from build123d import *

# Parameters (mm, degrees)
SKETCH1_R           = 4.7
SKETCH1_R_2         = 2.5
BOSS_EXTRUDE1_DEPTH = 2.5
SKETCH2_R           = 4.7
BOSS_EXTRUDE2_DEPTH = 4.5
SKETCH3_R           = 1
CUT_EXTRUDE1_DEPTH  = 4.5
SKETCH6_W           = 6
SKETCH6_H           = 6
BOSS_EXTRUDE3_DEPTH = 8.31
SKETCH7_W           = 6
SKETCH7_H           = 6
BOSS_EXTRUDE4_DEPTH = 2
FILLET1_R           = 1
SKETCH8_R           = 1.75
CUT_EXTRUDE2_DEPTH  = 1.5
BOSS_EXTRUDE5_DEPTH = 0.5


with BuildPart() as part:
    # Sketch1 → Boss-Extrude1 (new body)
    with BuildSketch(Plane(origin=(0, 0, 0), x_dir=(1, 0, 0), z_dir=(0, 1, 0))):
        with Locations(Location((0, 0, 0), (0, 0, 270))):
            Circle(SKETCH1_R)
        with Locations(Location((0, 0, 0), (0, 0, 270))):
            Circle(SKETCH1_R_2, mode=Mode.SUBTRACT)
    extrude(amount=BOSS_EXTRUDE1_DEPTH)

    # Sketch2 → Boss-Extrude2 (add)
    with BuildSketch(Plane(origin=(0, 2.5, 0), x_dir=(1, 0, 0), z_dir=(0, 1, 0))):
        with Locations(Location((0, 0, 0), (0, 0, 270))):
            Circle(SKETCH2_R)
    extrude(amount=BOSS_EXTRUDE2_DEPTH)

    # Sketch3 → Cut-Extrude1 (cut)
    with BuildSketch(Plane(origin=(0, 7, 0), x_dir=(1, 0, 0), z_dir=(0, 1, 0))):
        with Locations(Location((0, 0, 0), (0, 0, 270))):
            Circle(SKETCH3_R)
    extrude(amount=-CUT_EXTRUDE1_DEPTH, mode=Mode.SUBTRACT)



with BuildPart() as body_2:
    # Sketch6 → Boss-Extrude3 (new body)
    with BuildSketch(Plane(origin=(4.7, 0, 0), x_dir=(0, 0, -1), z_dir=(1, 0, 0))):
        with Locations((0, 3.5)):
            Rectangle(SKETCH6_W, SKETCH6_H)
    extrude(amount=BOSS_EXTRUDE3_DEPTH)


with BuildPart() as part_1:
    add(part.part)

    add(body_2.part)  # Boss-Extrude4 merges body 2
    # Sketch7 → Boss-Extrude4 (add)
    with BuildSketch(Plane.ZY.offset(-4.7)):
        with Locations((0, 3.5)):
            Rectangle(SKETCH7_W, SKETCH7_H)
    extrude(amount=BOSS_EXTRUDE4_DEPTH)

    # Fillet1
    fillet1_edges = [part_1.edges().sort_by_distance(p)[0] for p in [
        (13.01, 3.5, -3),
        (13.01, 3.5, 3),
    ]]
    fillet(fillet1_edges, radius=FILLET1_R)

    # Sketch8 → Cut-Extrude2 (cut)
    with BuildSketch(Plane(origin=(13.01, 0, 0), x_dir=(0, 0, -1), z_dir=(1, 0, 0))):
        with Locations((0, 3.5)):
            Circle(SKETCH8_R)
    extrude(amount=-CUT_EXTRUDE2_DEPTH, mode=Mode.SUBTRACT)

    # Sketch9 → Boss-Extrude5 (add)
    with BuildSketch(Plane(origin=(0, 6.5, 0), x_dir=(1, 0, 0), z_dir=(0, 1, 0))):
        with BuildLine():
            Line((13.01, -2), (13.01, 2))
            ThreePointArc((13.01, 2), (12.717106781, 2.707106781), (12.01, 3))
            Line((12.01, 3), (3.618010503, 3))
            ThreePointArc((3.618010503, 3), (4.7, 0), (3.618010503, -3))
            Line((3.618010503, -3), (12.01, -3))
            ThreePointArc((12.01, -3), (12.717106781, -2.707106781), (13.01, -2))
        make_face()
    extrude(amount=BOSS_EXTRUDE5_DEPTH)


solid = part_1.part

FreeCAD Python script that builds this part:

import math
import FreeCAD as App
import Part
import Sketcher
Q = App.Units.Quantity


def edges_at(feature, points):
    """Names of the edges that pass closest to the given points."""
    edges = feature.Shape.Edges
    near = lambda p: min(range(len(edges)), key=lambda i: edges[i].distToShape(Part.Vertex(*p))[0])
    return sorted({f"Edge{near(p) + 1}" for p in points})

doc = App.newDocument("Part")
params = doc.addObject("Spreadsheet::Sheet", "Params")
for row, (alias, value) in enumerate([
    ("sketch1_diameter", "5 mm"),
    ("sketch1_diameter2", "9.4 mm"),
    ("pad1_length", "2.5 mm"),
    ("sketch2_diameter", "9.4 mm"),
    ("pad2_length", "4.5 mm"),
    ("sketch3_diameter", "2 mm"),
    ("pocket1_length", "4.5 mm"),
    ("sketch4_width", "6 mm"),
    ("pad3_length", "8.31 mm"),
    ("sketch5_width", "6 mm"),
    ("pad4_length", "2 mm"),
    ("fillet_radius", "1 mm"),
    ("sketch6_diameter", "3.5 mm"),
    ("pocket2_length", "1.5 mm"),
    ("sketch7_radius", "1 mm"),
    ("sketch7_radius2", "4.7 mm"),
    ("sketch7_height", "4 mm"),
    ("pad5_length", "0.5 mm"),
], start=1):
    params.set(f"A{row}", alias)
    params.set(f"B{row}", "=" + value)
    params.setAlias(f"B{row}", alias)

body = doc.addObject("PartDesign::Body", "Body")

sketch1 = doc.addObject("Sketcher::SketchObject", "Sketch")
body.addObject(sketch1)
sketch1.AttachmentSupport = (doc.XZ_Plane, [""])
sketch1.MapMode = "FlatFace"
sketch1.addGeometry(Part.Circle(App.Vector(0, 0, 0), App.Vector(0, 0, 1), 4.7), False)
sketch1.addGeometry(Part.Circle(App.Vector(0, 0, 0), App.Vector(0, 0, 1), 2.5), False)
sketch1.addConstraint(Sketcher.Constraint("Coincident", 0, 3, -1, 1))
sketch1.addConstraint(Sketcher.Constraint("Coincident", 1, 3, -1, 1))
sketch1.addConstraint(Sketcher.Constraint("Diameter", 1, Q("5 mm")))
sketch1.addConstraint(Sketcher.Constraint("Diameter", 0, Q("9.4 mm")))
sketch1.setExpression("Constraints[2]", "Params.sketch1_diameter")
sketch1.setExpression("Constraints[3]", "Params.sketch1_diameter2")
pad1 = doc.addObject("PartDesign::Pad", "Pad")
body.addObject(pad1)
pad1.Profile = sketch1
pad1.setExpression("Length", "Params.pad1_length")
pad1.Reversed = True

sketch2 = doc.addObject("Sketcher::SketchObject", "Sketch001")
body.addObject(sketch2)
sketch2.AttachmentSupport = (doc.XZ_Plane, [""])
sketch2.MapMode = "FlatFace"
sketch2.AttachmentOffset = App.Placement(App.Vector(0, 0, -2.5), App.Rotation())
sketch2.addGeometry(Part.Circle(App.Vector(0, 0, 0), App.Vector(0, 0, 1), 4.7), False)
sketch2.addConstraint(Sketcher.Constraint("Coincident", 0, 3, -1, 1))
sketch2.addConstraint(Sketcher.Constraint("Diameter", 0, Q("9.4 mm")))
sketch2.setExpression("Constraints[1]", "Params.sketch2_diameter")
pad2 = doc.addObject("PartDesign::Pad", "Pad001")
body.addObject(pad2)
pad2.Profile = sketch2
pad2.setExpression("Length", "Params.pad2_length")
pad2.Reversed = True

sketch3 = doc.addObject("Sketcher::SketchObject", "Sketch002")
body.addObject(sketch3)
sketch3.AttachmentSupport = (doc.XZ_Plane, [""])
sketch3.MapMode = "FlatFace"
sketch3.AttachmentOffset = App.Placement(App.Vector(0, 0, -7), App.Rotation())
sketch3.addGeometry(Part.Circle(App.Vector(0, 0, 0), App.Vector(0, 0, 1), 1), False)
sketch3.addConstraint(Sketcher.Constraint("Coincident", 0, 3, -1, 1))
sketch3.addConstraint(Sketcher.Constraint("Diameter", 0, Q("2 mm")))
sketch3.setExpression("Constraints[1]", "Params.sketch3_diameter")
pocket1 = doc.addObject("PartDesign::Pocket", "Pocket")
body.addObject(pocket1)
pocket1.Profile = sketch3
pocket1.setExpression("Length", "Params.pocket1_length")
pocket1.Reversed = True
body2 = doc.addObject("PartDesign::Body", "Body001")

sketch4 = doc.addObject("Sketcher::SketchObject", "Sketch003")
body2.addObject(sketch4)
sketch4.AttachmentSupport = (doc.getObject("YZ_Plane001"), [""])
sketch4.MapMode = "FlatFace"
sketch4.AttachmentOffset = App.Placement(App.Vector(0, 0, 4.7), App.Rotation())
sketch4.addGeometry(Part.LineSegment(App.Vector(6.5, 3, 0), App.Vector(0.5, 3, 0)), False)
sketch4.addGeometry(Part.LineSegment(App.Vector(0.5, 3, 0), App.Vector(0.5, -3, 0)), False)
sketch4.addGeometry(Part.LineSegment(App.Vector(0.5, -3, 0), App.Vector(6.5, -3, 0)), False)
sketch4.addGeometry(Part.LineSegment(App.Vector(6.5, -3, 0), App.Vector(6.5, 3, 0)), False)
sketch4.addConstraint(Sketcher.Constraint("Coincident", 0, 2, 1, 1))
sketch4.addConstraint(Sketcher.Constraint("Coincident", 1, 2, 2, 1))
sketch4.addConstraint(Sketcher.Constraint("Coincident", 2, 2, 3, 1))
sketch4.addConstraint(Sketcher.Constraint("Coincident", 3, 2, 0, 1))
sketch4.addConstraint(Sketcher.Constraint("Horizontal", 0))
sketch4.addConstraint(Sketcher.Constraint("Vertical", 1))
sketch4.addConstraint(Sketcher.Constraint("Horizontal", 2))
sketch4.addConstraint(Sketcher.Constraint("Vertical", 3))
sketch4.addConstraint(Sketcher.Constraint("Equal", 2, 1))
sketch4.addConstraint(Sketcher.Constraint("DistanceX", 0, 2, 0, 1, Q("6 mm")))
sketch4.addConstraint(Sketcher.Constraint("DistanceY", -1, 1, 0, 2, Q("3 mm")))
sketch4.addConstraint(Sketcher.Constraint("DistanceX", -1, 1, 0, 2, Q("0.5 mm")))
sketch4.setExpression("Constraints[9]", "Params.sketch4_width")
pad3 = doc.addObject("PartDesign::Pad", "Pad002")
body2.addObject(pad3)
pad3.Profile = sketch4
pad3.setExpression("Length", "Params.pad3_length")
body.AllowCompound = True
doc.recompute()

boolean = doc.addObject("PartDesign::Boolean", "Boolean")
body.addObject(boolean)
boolean.Type = "Fuse"
boolean.addObjects([body2])

sketch5 = doc.addObject("Sketcher::SketchObject", "Sketch004")
body.addObject(sketch5)
sketch5.AttachmentSupport = (doc.YZ_Plane, [""])
sketch5.MapMode = "FlatFace"
sketch5.AttachmentOffset = App.Placement(App.Vector(0, 0, 4.7), App.Rotation())
sketch5.addGeometry(Part.LineSegment(App.Vector(6.5, -3, 0), App.Vector(0.5, -3, 0)), False)
sketch5.addGeometry(Part.LineSegment(App.Vector(0.5, -3, 0), App.Vector(0.5, 3, 0)), False)
sketch5.addGeometry(Part.LineSegment(App.Vector(0.5, 3, 0), App.Vector(6.5, 3, 0)), False)
sketch5.addGeometry(Part.LineSegment(App.Vector(6.5, 3, 0), App.Vector(6.5, -3, 0)), False)
sketch5.addConstraint(Sketcher.Constraint("Coincident", 0, 2, 1, 1))
sketch5.addConstraint(Sketcher.Constraint("Coincident", 1, 2, 2, 1))
sketch5.addConstraint(Sketcher.Constraint("Coincident", 2, 2, 3, 1))
sketch5.addConstraint(Sketcher.Constraint("Coincident", 3, 2, 0, 1))
sketch5.addConstraint(Sketcher.Constraint("Horizontal", 0))
sketch5.addConstraint(Sketcher.Constraint("Vertical", 1))
sketch5.addConstraint(Sketcher.Constraint("Horizontal", 2))
sketch5.addConstraint(Sketcher.Constraint("Vertical", 3))
sketch5.addConstraint(Sketcher.Constraint("Equal", 2, 1))
sketch5.addConstraint(Sketcher.Constraint("DistanceX", 0, 2, 0, 1, Q("6 mm")))
sketch5.addConstraint(Sketcher.Constraint("DistanceY", 0, 2, -1, 1, Q("3 mm")))
sketch5.addConstraint(Sketcher.Constraint("DistanceX", -1, 1, 0, 2, Q("0.5 mm")))
sketch5.setExpression("Constraints[9]", "Params.sketch5_width")
pad4 = doc.addObject("PartDesign::Pad", "Pad003")
body.addObject(pad4)
pad4.Profile = sketch5
pad4.setExpression("Length", "Params.pad4_length")
pad4.Reversed = True
doc.recompute()

fillet = doc.addObject("PartDesign::Fillet", "Fillet")
body.addObject(fillet)
fillet.Base = (pad4, edges_at(pad4, [(13.01, 3.5, -3), (13.01, 3.5, 3)]))
fillet.setExpression("Radius", "Params.fillet_radius")

sketch6 = doc.addObject("Sketcher::SketchObject", "Sketch005")
body.addObject(sketch6)
sketch6.AttachmentSupport = (doc.YZ_Plane, [""])
sketch6.MapMode = "FlatFace"
sketch6.AttachmentOffset = App.Placement(App.Vector(0, 0, 13.01), App.Rotation())
sketch6.addGeometry(Part.Circle(App.Vector(3.5, 0, 0), App.Vector(0, 0, 1), 1.75), False)
sketch6.addConstraint(Sketcher.Constraint("PointOnObject", 0, 3, -1))
sketch6.addConstraint(Sketcher.Constraint("Diameter", 0, Q("3.5 mm")))
sketch6.addConstraint(Sketcher.Constraint("DistanceX", -1, 1, 0, 3, Q("3.5 mm")))
sketch6.setExpression("Constraints[1]", "Params.sketch6_diameter")
pocket2 = doc.addObject("PartDesign::Pocket", "Pocket001")
body.addObject(pocket2)
pocket2.Profile = sketch6
pocket2.setExpression("Length", "Params.pocket2_length")

sketch7 = doc.addObject("Sketcher::SketchObject", "Sketch006")
body.addObject(sketch7)
sketch7.AttachmentSupport = (doc.XZ_Plane, [""])
sketch7.MapMode = "FlatFace"
sketch7.AttachmentOffset = App.Placement(App.Vector(0, 0, -6.5), App.Rotation())
sketch7.addGeometry(Part.LineSegment(App.Vector(13.01, 2, 0), App.Vector(13.01, -2, 0)), False)
sketch7.addGeometry(Part.ArcOfCircle(Part.Circle(App.Vector(12.01, -2, 0), App.Vector(0, 0, 1), 1), math.radians(-90), math.radians(0)), False)
sketch7.addGeometry(Part.LineSegment(App.Vector(12.01, -3, 0), App.Vector(3.618011, -3, 0)), False)
sketch7.addGeometry(Part.ArcOfCircle(Part.Circle(App.Vector(0, 0, 0), App.Vector(0, 0, 1), 4.7), math.radians(-39.665013), math.radians(39.665013)), False)
sketch7.addGeometry(Part.LineSegment(App.Vector(3.618011, 3, 0), App.Vector(12.01, 3, 0)), False)
sketch7.addGeometry(Part.ArcOfCircle(Part.Circle(App.Vector(12.01, 2, 0), App.Vector(0, 0, 1), 1), math.radians(0), math.radians(90)), False)
sketch7.addConstraint(Sketcher.Constraint("Tangent", 0, 2, 1, 2))
sketch7.addConstraint(Sketcher.Constraint("Tangent", 1, 1, 2, 1))
sketch7.addConstraint(Sketcher.Constraint("Coincident", 2, 2, 3, 1))
sketch7.addConstraint(Sketcher.Constraint("Coincident", 3, 2, 4, 1))
sketch7.addConstraint(Sketcher.Constraint("Tangent", 4, 2, 5, 2))
sketch7.addConstraint(Sketcher.Constraint("Tangent", 5, 1, 0, 1))
sketch7.addConstraint(Sketcher.Constraint("Vertical", 0))
sketch7.addConstraint(Sketcher.Constraint("Horizontal", 2))
sketch7.addConstraint(Sketcher.Constraint("Horizontal", 4))
sketch7.addConstraint(Sketcher.Constraint("Coincident", 3, 3, -1, 1))
sketch7.addConstraint(Sketcher.Constraint("Equal", 1, 5))
sketch7.addConstraint(Sketcher.Constraint("Vertical", 2, 2, 3, 2))
sketch7.addConstraint(Sketcher.Constraint("Radius", 1, Q("1 mm")))
sketch7.addConstraint(Sketcher.Constraint("Radius", 3, Q("4.7 mm")))
sketch7.addConstraint(Sketcher.Constraint("DistanceY", 0, 2, 0, 1, Q("4 mm")))
sketch7.addConstraint(Sketcher.Constraint("DistanceX", -1, 1, 1, 3, Q("12.01 mm")))
sketch7.setExpression("Constraints[12]", "Params.sketch7_radius")
sketch7.setExpression("Constraints[13]", "Params.sketch7_radius2")
sketch7.setExpression("Constraints[14]", "Params.sketch7_height")
pad5 = doc.addObject("PartDesign::Pad", "Pad004")
body.addObject(pad5)
pad5.Profile = sketch7
pad5.setExpression("Length", "Params.pad5_length")
pad5.Reversed = True

doc.recompute()
